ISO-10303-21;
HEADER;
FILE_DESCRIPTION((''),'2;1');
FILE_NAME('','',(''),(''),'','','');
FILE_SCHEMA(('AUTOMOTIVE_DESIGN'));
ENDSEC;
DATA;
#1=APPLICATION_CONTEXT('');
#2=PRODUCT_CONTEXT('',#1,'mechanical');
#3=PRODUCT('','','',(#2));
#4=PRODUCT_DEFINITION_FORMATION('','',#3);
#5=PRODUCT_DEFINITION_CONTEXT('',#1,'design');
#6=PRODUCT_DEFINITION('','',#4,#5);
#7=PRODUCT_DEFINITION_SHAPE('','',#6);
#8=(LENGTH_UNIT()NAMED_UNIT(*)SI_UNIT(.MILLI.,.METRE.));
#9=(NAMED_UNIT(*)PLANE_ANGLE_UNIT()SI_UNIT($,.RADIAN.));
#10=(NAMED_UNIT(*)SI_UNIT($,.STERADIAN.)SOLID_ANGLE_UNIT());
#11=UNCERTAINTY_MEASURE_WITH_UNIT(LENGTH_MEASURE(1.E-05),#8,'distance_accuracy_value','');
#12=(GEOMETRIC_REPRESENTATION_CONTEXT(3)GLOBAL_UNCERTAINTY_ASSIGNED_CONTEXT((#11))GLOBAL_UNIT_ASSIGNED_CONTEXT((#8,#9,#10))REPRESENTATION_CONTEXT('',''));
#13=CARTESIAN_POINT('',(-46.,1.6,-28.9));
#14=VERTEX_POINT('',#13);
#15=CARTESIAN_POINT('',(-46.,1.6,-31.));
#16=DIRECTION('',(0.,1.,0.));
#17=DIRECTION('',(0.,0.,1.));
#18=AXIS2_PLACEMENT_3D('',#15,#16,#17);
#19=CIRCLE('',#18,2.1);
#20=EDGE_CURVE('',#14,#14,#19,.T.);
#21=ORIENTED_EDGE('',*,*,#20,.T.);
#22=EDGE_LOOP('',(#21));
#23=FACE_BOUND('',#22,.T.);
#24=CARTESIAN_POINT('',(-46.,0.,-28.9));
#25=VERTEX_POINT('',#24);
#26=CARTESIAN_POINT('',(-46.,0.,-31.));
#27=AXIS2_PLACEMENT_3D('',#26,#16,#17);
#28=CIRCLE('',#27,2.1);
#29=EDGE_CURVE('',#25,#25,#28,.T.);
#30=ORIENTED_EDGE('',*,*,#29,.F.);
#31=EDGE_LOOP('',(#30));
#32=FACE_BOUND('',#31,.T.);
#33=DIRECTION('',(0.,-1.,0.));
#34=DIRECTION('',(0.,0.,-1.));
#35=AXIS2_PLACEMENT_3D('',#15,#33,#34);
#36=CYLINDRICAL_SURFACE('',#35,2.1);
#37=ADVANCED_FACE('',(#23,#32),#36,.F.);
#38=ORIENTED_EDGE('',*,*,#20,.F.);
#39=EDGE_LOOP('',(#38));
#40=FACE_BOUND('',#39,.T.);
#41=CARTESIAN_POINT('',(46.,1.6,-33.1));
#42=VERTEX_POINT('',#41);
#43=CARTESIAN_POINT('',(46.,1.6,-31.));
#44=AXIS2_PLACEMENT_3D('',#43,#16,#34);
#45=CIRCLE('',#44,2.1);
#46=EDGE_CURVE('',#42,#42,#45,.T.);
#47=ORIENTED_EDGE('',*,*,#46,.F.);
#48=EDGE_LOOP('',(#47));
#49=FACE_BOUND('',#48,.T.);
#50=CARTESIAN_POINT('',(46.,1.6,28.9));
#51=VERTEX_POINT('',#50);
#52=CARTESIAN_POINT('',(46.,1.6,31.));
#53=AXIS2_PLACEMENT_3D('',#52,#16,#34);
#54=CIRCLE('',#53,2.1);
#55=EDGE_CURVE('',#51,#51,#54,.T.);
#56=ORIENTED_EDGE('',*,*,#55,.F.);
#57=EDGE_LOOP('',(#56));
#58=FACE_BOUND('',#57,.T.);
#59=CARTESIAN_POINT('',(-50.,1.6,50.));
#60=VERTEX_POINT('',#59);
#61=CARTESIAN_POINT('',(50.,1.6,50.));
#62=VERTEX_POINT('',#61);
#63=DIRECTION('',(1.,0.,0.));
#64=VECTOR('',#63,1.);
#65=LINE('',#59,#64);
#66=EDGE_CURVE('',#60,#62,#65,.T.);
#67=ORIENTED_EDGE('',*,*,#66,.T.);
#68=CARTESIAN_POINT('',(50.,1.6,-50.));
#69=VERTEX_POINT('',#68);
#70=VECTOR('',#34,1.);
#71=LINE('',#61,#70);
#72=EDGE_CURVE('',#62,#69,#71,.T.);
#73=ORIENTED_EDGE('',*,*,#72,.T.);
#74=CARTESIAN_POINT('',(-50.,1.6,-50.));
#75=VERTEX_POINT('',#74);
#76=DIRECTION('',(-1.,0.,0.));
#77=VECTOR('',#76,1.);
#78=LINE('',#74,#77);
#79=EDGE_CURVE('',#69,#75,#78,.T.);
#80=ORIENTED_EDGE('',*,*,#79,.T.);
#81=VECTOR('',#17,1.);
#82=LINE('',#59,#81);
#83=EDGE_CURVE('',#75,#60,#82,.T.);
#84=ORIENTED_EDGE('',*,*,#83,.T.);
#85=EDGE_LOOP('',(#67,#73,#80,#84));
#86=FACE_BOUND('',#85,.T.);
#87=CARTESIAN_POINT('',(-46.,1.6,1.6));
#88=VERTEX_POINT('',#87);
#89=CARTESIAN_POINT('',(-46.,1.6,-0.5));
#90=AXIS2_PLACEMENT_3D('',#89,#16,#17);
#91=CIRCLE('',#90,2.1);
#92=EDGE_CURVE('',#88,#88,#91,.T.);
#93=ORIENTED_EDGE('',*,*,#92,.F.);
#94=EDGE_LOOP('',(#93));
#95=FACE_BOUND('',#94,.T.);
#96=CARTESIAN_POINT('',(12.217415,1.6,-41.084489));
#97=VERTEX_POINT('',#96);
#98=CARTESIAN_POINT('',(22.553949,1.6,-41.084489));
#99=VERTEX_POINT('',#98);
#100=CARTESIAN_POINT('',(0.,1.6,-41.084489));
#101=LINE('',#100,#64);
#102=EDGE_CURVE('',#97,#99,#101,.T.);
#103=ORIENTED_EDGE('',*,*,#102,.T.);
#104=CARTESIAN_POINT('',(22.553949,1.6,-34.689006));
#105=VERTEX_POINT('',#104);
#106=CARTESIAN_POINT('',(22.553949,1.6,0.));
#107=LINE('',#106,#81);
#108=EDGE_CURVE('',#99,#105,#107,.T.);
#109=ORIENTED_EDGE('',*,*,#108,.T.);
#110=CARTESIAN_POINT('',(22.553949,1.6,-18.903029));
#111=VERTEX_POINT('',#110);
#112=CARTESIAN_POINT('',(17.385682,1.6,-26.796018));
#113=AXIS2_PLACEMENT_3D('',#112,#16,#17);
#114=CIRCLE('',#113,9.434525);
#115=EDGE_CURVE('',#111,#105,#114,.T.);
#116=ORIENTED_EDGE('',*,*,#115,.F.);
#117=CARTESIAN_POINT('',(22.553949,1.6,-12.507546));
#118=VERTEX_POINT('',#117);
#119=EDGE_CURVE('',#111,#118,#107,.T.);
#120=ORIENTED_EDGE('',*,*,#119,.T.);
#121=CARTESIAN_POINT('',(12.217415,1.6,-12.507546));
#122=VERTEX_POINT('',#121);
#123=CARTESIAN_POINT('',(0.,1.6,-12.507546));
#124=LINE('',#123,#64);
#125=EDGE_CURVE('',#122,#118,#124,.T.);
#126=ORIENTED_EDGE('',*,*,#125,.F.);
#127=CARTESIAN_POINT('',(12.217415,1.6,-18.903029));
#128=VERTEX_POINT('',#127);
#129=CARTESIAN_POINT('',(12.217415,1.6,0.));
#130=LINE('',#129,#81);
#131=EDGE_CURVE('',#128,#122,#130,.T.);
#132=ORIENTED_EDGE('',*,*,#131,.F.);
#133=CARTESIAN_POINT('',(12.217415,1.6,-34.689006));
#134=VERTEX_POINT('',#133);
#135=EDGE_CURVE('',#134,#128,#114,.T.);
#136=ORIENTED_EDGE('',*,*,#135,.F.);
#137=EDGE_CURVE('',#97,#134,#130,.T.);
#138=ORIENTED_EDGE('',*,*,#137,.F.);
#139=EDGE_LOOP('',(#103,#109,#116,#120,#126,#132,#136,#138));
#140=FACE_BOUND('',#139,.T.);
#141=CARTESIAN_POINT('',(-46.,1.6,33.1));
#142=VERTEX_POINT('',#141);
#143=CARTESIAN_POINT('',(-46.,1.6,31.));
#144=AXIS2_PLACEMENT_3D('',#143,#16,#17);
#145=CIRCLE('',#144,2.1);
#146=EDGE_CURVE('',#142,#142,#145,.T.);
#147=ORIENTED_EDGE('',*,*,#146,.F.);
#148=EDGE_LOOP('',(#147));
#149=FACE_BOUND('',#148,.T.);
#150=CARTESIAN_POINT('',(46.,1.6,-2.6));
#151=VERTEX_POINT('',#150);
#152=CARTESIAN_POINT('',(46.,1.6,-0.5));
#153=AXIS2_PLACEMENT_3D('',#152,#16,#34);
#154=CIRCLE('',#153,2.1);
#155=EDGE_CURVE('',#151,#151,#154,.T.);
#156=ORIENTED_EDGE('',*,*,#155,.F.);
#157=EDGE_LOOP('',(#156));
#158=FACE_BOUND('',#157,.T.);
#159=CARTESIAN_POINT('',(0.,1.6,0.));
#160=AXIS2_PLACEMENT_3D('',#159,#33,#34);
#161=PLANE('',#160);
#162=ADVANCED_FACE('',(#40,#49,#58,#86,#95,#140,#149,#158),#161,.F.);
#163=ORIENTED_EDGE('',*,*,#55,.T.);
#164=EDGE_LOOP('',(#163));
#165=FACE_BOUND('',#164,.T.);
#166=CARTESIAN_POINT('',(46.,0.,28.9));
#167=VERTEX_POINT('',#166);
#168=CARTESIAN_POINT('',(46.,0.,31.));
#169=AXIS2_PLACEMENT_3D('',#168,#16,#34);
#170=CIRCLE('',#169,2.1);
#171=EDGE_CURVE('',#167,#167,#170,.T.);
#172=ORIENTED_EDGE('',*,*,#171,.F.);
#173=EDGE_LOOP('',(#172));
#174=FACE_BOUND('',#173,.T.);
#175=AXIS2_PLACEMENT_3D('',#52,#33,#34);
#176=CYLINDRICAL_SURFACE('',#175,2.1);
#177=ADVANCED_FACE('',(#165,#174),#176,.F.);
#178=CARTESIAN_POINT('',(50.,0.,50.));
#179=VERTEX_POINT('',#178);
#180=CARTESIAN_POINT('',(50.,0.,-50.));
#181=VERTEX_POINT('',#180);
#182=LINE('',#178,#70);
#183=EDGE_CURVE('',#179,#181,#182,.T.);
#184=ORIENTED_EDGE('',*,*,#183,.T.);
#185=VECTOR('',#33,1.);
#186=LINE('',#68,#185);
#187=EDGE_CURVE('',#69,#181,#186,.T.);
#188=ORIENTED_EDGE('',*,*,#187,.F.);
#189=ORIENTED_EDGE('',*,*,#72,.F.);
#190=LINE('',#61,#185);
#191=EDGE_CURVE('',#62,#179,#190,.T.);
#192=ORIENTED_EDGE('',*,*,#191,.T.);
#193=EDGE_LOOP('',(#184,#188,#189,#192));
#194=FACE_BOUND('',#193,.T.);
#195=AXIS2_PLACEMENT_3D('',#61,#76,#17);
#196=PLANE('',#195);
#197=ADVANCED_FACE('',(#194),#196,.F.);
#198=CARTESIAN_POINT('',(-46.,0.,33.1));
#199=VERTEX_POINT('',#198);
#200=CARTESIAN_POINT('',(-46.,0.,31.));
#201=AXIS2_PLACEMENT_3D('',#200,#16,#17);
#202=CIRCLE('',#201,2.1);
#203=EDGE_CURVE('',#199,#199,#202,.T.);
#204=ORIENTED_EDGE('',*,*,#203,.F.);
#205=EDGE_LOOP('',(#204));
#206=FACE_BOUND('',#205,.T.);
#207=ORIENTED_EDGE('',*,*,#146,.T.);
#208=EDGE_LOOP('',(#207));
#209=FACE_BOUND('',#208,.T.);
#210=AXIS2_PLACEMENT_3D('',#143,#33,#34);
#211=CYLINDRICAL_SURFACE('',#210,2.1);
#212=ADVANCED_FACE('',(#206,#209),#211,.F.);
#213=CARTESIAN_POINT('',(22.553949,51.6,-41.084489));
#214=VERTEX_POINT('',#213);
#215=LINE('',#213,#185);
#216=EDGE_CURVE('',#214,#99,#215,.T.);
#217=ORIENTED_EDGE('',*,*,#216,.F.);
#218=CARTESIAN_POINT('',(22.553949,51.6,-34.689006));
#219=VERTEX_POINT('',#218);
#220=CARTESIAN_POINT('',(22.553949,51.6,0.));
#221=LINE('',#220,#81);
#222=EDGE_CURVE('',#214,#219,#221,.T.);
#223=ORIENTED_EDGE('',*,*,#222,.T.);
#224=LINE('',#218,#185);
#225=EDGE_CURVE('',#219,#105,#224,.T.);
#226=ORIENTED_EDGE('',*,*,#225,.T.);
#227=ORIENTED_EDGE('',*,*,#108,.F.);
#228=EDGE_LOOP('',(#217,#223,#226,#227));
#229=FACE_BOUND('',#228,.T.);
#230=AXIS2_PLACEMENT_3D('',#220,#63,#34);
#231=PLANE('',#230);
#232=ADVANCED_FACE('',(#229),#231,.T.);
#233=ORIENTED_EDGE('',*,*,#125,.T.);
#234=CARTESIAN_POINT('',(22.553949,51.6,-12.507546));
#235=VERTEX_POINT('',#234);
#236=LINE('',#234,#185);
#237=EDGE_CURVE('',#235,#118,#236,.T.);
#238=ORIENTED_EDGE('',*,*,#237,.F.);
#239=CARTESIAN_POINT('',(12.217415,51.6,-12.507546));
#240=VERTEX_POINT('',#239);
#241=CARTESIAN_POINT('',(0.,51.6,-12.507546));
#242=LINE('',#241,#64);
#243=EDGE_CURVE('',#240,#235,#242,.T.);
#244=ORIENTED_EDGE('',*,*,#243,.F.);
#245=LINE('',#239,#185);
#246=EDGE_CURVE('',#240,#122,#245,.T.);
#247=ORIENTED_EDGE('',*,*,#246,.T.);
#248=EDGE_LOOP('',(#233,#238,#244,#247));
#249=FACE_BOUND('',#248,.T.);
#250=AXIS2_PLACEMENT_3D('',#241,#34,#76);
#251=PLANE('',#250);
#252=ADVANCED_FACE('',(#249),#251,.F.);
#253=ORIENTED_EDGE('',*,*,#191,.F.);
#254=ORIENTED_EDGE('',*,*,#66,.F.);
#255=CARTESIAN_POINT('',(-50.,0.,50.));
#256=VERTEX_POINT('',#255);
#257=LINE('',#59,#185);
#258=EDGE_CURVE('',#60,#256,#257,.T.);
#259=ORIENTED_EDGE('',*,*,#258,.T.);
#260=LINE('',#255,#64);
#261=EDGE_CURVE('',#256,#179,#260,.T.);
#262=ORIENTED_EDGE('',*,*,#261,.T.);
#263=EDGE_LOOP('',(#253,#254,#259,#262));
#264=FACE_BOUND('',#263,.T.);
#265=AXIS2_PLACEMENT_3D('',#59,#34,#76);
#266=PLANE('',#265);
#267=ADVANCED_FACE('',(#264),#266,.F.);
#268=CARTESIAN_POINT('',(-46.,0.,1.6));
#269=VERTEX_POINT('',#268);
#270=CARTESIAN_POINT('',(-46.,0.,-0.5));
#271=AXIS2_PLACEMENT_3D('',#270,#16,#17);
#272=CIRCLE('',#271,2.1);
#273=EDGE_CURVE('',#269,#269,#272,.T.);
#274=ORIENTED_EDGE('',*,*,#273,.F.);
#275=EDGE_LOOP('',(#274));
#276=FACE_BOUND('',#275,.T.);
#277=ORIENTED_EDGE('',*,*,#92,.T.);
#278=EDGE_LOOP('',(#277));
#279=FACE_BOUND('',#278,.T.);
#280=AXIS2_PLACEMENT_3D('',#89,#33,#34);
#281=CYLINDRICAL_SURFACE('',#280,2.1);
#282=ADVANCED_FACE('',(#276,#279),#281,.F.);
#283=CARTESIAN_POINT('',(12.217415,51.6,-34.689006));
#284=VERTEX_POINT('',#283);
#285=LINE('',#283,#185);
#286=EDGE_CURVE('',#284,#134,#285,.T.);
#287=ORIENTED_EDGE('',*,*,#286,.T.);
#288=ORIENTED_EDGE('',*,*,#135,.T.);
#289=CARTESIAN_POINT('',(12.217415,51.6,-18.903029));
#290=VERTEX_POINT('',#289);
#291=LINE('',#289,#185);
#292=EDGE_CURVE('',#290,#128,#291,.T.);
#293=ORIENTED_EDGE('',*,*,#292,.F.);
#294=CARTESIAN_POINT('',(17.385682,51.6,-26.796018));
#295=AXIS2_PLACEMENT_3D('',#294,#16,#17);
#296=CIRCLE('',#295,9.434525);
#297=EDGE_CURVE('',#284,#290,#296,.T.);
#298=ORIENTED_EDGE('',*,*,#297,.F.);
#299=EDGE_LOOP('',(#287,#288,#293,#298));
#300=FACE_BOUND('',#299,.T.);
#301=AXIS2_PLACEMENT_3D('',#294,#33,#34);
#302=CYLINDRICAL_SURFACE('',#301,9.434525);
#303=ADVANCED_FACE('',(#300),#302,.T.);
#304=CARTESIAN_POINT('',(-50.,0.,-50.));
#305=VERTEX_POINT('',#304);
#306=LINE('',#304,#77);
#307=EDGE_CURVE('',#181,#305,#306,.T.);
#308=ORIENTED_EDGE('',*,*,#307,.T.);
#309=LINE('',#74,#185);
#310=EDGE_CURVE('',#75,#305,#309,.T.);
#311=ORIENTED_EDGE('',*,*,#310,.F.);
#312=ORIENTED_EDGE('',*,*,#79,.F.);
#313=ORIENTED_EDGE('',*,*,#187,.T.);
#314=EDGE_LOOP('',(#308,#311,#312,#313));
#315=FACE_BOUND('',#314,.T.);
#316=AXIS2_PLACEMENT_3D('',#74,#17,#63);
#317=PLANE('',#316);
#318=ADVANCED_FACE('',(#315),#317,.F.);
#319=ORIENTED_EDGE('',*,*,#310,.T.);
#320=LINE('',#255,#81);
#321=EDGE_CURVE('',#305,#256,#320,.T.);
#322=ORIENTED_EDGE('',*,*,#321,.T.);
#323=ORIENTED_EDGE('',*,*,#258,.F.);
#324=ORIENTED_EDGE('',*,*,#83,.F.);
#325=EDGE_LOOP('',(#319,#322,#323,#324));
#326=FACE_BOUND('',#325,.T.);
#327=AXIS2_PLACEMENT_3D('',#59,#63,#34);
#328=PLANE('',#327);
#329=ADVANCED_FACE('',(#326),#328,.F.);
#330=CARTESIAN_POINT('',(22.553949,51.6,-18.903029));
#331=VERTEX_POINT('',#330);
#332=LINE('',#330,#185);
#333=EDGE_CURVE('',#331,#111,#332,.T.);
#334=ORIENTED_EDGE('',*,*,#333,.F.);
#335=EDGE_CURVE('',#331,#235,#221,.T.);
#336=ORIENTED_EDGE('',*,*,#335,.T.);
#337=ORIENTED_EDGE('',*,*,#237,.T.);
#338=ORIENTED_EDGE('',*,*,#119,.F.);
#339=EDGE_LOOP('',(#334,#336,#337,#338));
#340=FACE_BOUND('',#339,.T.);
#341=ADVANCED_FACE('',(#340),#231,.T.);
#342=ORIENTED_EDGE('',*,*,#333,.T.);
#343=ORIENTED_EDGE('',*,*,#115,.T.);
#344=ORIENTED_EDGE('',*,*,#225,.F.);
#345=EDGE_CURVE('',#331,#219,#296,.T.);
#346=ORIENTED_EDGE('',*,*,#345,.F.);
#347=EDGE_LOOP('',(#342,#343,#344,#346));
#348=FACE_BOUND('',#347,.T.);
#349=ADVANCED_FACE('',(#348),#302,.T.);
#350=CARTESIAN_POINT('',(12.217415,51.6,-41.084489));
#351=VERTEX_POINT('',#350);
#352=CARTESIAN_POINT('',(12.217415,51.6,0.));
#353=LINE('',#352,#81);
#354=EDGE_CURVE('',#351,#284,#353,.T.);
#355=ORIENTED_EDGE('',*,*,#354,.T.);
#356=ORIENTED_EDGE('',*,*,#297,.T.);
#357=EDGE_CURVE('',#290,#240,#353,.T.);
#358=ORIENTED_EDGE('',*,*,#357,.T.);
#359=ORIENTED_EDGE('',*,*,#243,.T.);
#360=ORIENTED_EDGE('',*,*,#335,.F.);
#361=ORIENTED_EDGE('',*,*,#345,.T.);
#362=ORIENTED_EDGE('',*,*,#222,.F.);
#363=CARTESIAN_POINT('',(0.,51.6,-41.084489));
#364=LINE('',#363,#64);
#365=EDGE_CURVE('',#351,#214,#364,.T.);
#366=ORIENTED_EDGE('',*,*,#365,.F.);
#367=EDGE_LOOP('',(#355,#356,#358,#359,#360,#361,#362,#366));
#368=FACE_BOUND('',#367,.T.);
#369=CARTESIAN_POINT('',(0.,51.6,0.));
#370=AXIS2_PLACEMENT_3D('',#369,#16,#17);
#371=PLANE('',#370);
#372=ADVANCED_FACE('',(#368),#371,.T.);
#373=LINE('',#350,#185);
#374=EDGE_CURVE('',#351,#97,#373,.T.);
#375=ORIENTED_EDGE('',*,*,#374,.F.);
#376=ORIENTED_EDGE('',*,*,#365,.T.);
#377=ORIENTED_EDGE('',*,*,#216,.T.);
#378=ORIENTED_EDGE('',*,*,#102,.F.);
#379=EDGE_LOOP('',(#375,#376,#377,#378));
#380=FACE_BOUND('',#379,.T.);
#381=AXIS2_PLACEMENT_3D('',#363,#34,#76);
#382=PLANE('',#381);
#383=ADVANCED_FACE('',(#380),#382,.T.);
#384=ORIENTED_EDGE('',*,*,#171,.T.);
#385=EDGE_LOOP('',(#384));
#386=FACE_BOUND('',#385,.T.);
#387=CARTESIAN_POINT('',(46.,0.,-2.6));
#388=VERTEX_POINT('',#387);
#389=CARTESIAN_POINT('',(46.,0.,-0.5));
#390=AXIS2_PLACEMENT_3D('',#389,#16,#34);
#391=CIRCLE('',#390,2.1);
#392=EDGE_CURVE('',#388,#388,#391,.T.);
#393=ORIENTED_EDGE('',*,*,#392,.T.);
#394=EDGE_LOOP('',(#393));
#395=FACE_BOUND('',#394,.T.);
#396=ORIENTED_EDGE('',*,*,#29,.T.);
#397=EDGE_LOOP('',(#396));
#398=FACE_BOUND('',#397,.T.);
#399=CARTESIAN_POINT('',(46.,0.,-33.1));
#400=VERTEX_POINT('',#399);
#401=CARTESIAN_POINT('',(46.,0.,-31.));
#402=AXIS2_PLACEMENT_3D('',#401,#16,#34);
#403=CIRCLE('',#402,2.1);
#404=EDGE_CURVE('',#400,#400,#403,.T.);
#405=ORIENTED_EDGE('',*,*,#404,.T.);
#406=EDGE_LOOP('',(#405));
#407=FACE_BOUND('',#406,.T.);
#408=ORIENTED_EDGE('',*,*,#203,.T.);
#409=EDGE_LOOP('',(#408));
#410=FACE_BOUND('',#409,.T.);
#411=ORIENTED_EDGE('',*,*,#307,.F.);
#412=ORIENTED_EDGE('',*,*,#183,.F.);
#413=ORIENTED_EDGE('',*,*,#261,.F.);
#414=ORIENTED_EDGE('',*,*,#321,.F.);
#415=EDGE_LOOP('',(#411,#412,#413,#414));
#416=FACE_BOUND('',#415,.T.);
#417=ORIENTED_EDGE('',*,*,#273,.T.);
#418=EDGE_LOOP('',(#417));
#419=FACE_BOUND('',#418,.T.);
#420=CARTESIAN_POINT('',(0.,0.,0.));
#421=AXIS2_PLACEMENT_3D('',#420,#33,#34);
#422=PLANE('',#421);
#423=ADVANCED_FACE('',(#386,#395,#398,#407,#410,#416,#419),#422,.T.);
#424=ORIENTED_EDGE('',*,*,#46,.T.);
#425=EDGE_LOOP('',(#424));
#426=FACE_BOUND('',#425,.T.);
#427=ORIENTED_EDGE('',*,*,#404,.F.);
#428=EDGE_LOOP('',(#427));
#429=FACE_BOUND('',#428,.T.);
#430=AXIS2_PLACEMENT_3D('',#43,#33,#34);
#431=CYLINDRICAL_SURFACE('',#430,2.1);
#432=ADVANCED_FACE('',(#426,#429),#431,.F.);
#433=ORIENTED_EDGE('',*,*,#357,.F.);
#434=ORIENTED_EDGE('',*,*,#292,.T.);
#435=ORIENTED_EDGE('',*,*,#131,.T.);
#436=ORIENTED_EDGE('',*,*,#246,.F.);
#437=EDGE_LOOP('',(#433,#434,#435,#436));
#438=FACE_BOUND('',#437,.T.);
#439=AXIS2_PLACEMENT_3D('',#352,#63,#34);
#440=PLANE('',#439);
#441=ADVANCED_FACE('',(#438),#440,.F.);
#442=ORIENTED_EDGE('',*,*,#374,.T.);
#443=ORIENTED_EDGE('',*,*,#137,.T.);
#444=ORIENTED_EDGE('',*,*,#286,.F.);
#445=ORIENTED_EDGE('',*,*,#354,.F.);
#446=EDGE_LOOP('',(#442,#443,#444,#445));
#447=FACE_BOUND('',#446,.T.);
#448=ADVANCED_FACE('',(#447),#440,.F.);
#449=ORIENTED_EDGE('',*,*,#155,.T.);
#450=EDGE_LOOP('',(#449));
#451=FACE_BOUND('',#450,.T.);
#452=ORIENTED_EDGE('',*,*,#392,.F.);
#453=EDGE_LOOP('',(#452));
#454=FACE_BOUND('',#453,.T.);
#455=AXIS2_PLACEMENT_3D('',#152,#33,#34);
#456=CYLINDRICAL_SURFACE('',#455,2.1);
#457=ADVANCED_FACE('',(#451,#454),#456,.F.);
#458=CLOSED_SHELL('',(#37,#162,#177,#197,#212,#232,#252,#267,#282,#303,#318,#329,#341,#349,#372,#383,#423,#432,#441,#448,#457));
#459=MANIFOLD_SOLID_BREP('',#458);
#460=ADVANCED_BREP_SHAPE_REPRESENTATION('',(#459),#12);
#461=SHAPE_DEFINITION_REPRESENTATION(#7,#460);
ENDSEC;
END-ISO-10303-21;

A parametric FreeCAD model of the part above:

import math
import FreeCAD as App
import Part
import Sketcher
from FreeCAD import Vector


def add_polygon(sketch, points):
    """Adds a closed chain of lines whose ends are joined by coincident constraints."""
    first, n = sketch.GeometryCount, len(points)
    for a, b in zip(points, points[1:] + points[:1]):
        sketch.addGeometry(Part.LineSegment(App.Vector(*a, 0), App.Vector(*b, 0)), False)
    for i in range(n):
        sketch.addConstraint(Sketcher.Constraint("Coincident", first + i, 2, first + (i + 1) % n, 1))

doc = App.newDocument("Part")
body = doc.addObject("PartDesign::Body", "Body")

sketch1 = body.newObject("Sketcher::SketchObject", "Sketch")
sketch1.AttachmentSupport = (doc.getObject("XZ_Plane"), [""])
sketch1.MapMode = "FlatFace"
add_polygon(sketch1, [(-50, -50), (-50, 50), (50, 50), (50, -50)])
sketch1.addGeometry(Part.Circle(Vector(-46, 31, 0), Vector(0, 0, 1), 2.1), False)
sketch1.addGeometry(Part.Circle(Vector(46, 31, 0), Vector(0, 0, 1), 2.1), False)
sketch1.addGeometry(Part.Circle(Vector(-46, -0.5, 0), Vector(0, 0, 1), 2.1), False)
sketch1.addGeometry(Part.Circle(Vector(-46, -31, 0), Vector(0, 0, 1), 2.1), False)
sketch1.addGeometry(Part.Circle(Vector(46, -0.5, 0), Vector(0, 0, 1), 2.1), False)
sketch1.addGeometry(Part.Circle(Vector(46, -31, 0), Vector(0, 0, 1), 2.1), False)
sketch1.addConstraint([
    Sketcher.Constraint("Vertical", 0),
    Sketcher.Constraint("Horizontal", 1),
    Sketcher.Constraint("Vertical", 2),
    Sketcher.Constraint("Horizontal", 3),
    Sketcher.Constraint("Equal", 4, 5),
    Sketcher.Constraint("Equal", 5, 6),
    Sketcher.Constraint("Equal", 6, 7),
    Sketcher.Constraint("Equal", 7, 8),
    Sketcher.Constraint("Equal", 8, 9),
    Sketcher.Constraint("Symmetric", 5, 3, 7, 3, -1, 1),
    Sketcher.Constraint("Symmetric", 4, 3, 9, 3, -1, 1),
    Sketcher.Constraint("Symmetric", 0, 2, 2, 2, -1, 1),
    Sketcher.Constraint("Symmetric", 4, 3, 5, 3, -2),
    Sketcher.Constraint("Symmetric", 6, 3, 8, 3, -2),
    Sketcher.Constraint("Vertical", 4, 3, 6, 3),
    Sketcher.Constraint("Equal", 3, 0),
    Sketcher.Constraint("Diameter", 4, 4.2),
    Sketcher.Constraint("DistanceX", 1, 1, 1, 2, 100.0),
    Sketcher.Constraint("DistanceX", 4, 3, -1, 1, 46.0),
    Sketcher.Constraint("DistanceY", -1, 1, 4, 3, 31.0),
    Sketcher.Constraint("DistanceY", 6, 3, -1, 1, 0.5),
])
pad1 = body.newObject("PartDesign::Pad", "Pad")
pad1.Profile = sketch1
pad1.Length = 1.6
pad1.Reversed = True

sketch2 = body.newObject("Sketcher::SketchObject", "Sketch001")
sketch2.AttachmentSupport = (doc.getObject("XZ_Plane"), [""])
sketch2.MapMode = "FlatFace"
sketch2.AttachmentOffset = App.Placement(Vector(0, 0, -1.6), App.Rotation())
sketch2.addGeometry([
    Part.ArcOfCircle(Part.Circle(Vector(17, -27, 0), Vector(0, 0, 1), 9), math.radians(123), math.radians(237)),
    Part.LineSegment(Vector(12, -19, 0), Vector(12, -13, 0)),
    Part.LineSegment(Vector(12, -13, 0), Vector(23, -13, 0)),
    Part.LineSegment(Vector(23, -13, 0), Vector(23, -19, 0)),
    Part.ArcOfCircle(Part.Circle(Vector(17, -27, 0), Vector(0, 0, 1), 9), math.radians(0), math.radians(57)),
    Part.ArcOfCircle(Part.Circle(Vector(17, -27, 0), Vector(0, 0, 1), 9), math.radians(-57), math.radians(0)),
    Part.LineSegment(Vector(23, -35, 0), Vector(23, -41, 0)),
    Part.LineSegment(Vector(23, -41, 0), Vector(12, -41, 0)),
    Part.LineSegment(Vector(12, -41, 0), Vector(12, -35, 0)),
], False)
sketch2.addConstraint([
    Sketcher.Constraint("Coincident", 0, 1, 1, 1),
    Sketcher.Constraint("Coincident", 1, 2, 2, 1),
    Sketcher.Constraint("Coincident", 2, 2, 3, 1),
    Sketcher.Constraint("Coincident", 3, 2, 4, 2),
    Sketcher.Constraint("Tangent", 4, 1, 5, 2),
    Sketcher.Constraint("Coincident", 5, 1, 6, 1),
    Sketcher.Constraint("Coincident", 6, 2, 7, 1),
    Sketcher.Constraint("Coincident", 7, 2, 8, 1),
    Sketcher.Constraint("Coincident", 8, 2, 0, 2),
    Sketcher.Constraint("Vertical", 1),
    Sketcher.Constraint("Horizontal", 2),
    Sketcher.Constraint("Vertical", 3),
    Sketcher.Constraint("Vertical", 6),
    Sketcher.Constraint("Horizontal", 7),
    Sketcher.Constraint("Vertical", 8),
    Sketcher.Constraint("Coincident", 4, 3, 0, 3),
    Sketcher.Constraint("Equal", 0, 4),
    Sketcher.Constraint("Equal", 4, 5),
    Sketcher.Constraint("Horizontal", 0, 1, 3, 2),
    Sketcher.Constraint("Horizontal", 5, 3, 4, 1),
    Sketcher.Constraint("Horizontal", 5, 1, 8, 2),
    Sketcher.Constraint("Vertical", 3, 2, 5, 1),
    Sketcher.Constraint("Equal", 3, 6),
    Sketcher.Constraint("Radius", 0, 9.434525),
    Sketcher.Constraint("DistanceX", 2, 1, 2, 2, 10.336534),
    Sketcher.Constraint("DistanceY", 1, 1, 1, 2, 6.395483),
    Sketcher.Constraint("DistanceX", -1, 1, 0, 3, 17.385682),
    Sketcher.Constraint("DistanceY", 0, 1, -1, 1, 18.903029),
])
pad2 = body.newObject("PartDesign::Pad", "Pad001")
pad2.Profile = sketch2
pad2.Length = 50
pad2.Reversed = True

doc.recompute()
